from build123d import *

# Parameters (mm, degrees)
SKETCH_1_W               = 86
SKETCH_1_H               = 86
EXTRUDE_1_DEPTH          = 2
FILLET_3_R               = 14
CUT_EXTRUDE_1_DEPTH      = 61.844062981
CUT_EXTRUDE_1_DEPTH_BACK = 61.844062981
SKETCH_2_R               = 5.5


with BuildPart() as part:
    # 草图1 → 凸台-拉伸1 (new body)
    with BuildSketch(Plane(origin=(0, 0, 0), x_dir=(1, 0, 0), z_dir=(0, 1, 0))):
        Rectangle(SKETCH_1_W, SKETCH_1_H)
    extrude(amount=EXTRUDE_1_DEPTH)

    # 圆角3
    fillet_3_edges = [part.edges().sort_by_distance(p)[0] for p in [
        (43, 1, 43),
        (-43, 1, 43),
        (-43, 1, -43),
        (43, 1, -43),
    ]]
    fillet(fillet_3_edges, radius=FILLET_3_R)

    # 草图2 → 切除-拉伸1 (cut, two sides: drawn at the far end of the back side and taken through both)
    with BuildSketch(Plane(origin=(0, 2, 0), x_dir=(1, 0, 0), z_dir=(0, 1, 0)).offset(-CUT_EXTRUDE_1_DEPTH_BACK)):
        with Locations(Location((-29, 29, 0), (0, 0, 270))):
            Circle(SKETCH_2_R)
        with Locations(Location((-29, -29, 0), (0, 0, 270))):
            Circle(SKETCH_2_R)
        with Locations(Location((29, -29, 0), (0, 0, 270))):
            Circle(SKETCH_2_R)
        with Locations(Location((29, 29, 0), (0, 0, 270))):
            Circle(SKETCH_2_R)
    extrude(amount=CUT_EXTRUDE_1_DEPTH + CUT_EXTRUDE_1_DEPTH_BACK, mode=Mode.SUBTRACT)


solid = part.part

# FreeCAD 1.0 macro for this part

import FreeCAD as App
import Part
import Sketcher
from FreeCAD import Vector


def edges_at(feature, points):
    """Names of the edges that pass closest to the given points."""
    edges = feature.Shape.Edges
    near = lambda p: min(range(len(edges)), key=lambda i: edges[i].distToShape(Part.Vertex(*p))[0])
    return sorted({f"Edge{near(p) + 1}" for p in points})

doc = App.newDocument("Part")
body = doc.addObject("PartDesign::Body", "Body")

# Sketch on XZ plane
sketch1 = body.newObject("Sketcher::SketchObject", "Sketch")
sketch1.AttachmentSupport = (doc.getObject("XZ_Plane"), [""])
sketch1.MapMode = "FlatFace"
sketch1.addGeometry([
    Part.LineSegment(Vector(-43, -43, 0), Vector(-43, 43, 0)),
    Part.LineSegment(Vector(-43, 43, 0), Vector(43, 43, 0)),
    Part.LineSegment(Vector(43, 43, 0), Vector(43, -43, 0)),
    Part.LineSegment(Vector(43, -43, 0), Vector(-43, -43, 0)),
], False)
sketch1.addConstraint([
    Sketcher.Constraint("Coincident", 0, 2, 1, 1),
    Sketcher.Constraint("Coincident", 1, 2, 2, 1),
    Sketcher.Constraint("Coincident", 2, 2, 3, 1),
    Sketcher.Constraint("Coincident", 3, 2, 0, 1),
    Sketcher.Constraint("Vertical", 0),
    Sketcher.Constraint("Horizontal", 1),
    Sketcher.Constraint("Vertical", 2),
    Sketcher.Constraint("Horizontal", 3),
    Sketcher.Constraint("Symmetric", 0, 2, 2, 2, -1, 1),
    Sketcher.Constraint("Equal", 3, 0),
    Sketcher.Constraint("DistanceX", 1, 1, 1, 2, 86.0),
])
pad1 = body.newObject("PartDesign::Pad", "Pad")
pad1.Profile = sketch1
pad1.Length = 2
pad1.Reversed = True
doc.recompute()

fillet = body.newObject("PartDesign::Fillet", "Fillet")
fillet.Base = (pad1, edges_at(pad1, [
    (43, 1, 43),
    (-43, 1, 43),
    (-43, 1, -43),
    (43, 1, -43),
]))
fillet.Radius = 14

# Sketch on XZ plane
sketch2 = body.newObject("Sketcher::SketchObject", "Sketch001")
sketch2.AttachmentSupport = (doc.getObject("XZ_Plane"), [""])
sketch2.MapMode = "FlatFace"
sketch2.AttachmentOffset = App.Placement(Vector(0, 0, -2), App.Rotation())
sketch2.addGeometry([
    Part.Circle(Vector(-29, -29, 0), Vector(0, 0, 1), 6),
    Part.Circle(Vector(-29, 29, 0), Vector(0, 0, 1), 6),
    Part.Circle(Vector(29, 29, 0), Vector(0, 0, 1), 6),
    Part.Circle(Vector(29, -29, 0), Vector(0, 0, 1), 6),
], False)
sketch2.addConstraint([
    Sketcher.Constraint("Equal", 0, 1),
    Sketcher.Constraint("Equal", 1, 2),
    Sketcher.Constraint("Equal", 2, 3),
    Sketcher.Constraint("Symmetric", 0, 3, 2, 3, -1, 1),
    Sketcher.Constraint("Symmetric", 1, 3, 3, 3, -1, 1),
    Sketcher.Constraint("Symmetric", 1, 3, 2, 3, -2),
    Sketcher.Constraint("Diameter", 0, 11.0),
    Sketcher.Constraint("DistanceX", 0, 3, -1, 1, 29.0),
    Sketcher.Constraint("DistanceY", 0, 3, -1, 1, 29.0),
])
pocket1 = body.newObject("PartDesign::Pocket", "Pocket")
pocket1.Profile = sketch2
pocket1.Type = "ThroughAll"
pocket1.Midplane = True

doc.recompute()
